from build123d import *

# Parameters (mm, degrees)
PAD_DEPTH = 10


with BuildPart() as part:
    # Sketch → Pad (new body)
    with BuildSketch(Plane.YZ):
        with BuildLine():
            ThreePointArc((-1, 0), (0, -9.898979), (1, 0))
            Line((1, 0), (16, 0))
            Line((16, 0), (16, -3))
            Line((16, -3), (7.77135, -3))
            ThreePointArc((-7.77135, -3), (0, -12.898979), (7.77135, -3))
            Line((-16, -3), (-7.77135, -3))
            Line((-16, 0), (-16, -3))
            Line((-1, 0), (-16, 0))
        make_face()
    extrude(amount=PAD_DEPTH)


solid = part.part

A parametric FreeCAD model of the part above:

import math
import FreeCAD as App
import Part
import Sketcher

V = App.Vector

doc = App.newDocument("Part")
body = doc.addObject("PartDesign::Body", "Body")

sketch1 = body.newObject("Sketcher::SketchObject", "Sketch")
sketch1.AttachmentSupport = (doc.getObject("YZ_Plane"), [""])
sketch1.MapMode = "FlatFace"
sketch1.addGeometry([
    Part.ArcOfCircle(Part.Circle(V(0, -4.898979, 0), V(0, 0, 1), 5), math.radians(101.53696), math.radians(438.46304)),
    Part.LineSegment(V(-1, 0, 0), V(-16, 0, 0)),
    Part.LineSegment(V(-16, 0, 0), V(-16, -3, 0)),
    Part.LineSegment(V(-16, -3, 0), V(-7.77135, -3, 0)),
    Part.ArcOfCircle(Part.Circle(V(0, -4.898979, 0), V(0, 0, 1), 8), math.radians(166.268493), math.radians(373.731507)),
    Part.LineSegment(V(7.77135, -3, 0), V(16, -3, 0)),
    Part.LineSegment(V(16, -3, 0), V(16, 0, 0)),
    Part.LineSegment(V(16, 0, 0), V(1, 0, 0)),
], False)
sketch1.addConstraint([
    Sketcher.Constraint("Coincident", 0, 1, 1, 1),
    Sketcher.Constraint("Coincident", 1, 2, 2, 1),
    Sketcher.Constraint("Coincident", 2, 2, 3, 1),
    Sketcher.Constraint("Coincident", 3, 2, 4, 1),
    Sketcher.Constraint("Coincident", 4, 2, 5, 1),
    Sketcher.Constraint("Coincident", 5, 2, 6, 1),
    Sketcher.Constraint("Coincident", 6, 2, 7, 1),
    Sketcher.Constraint("Coincident", 7, 2, 0, 2),
    Sketcher.Constraint("Horizontal", 1),
    Sketcher.Constraint("Vertical", 2),
    Sketcher.Constraint("Horizontal", 3),
    Sketcher.Constraint("Horizontal", 5),
    Sketcher.Constraint("Vertical", 6),
    Sketcher.Constraint("Horizontal", 7),
    Sketcher.Constraint("Coincident", 4, 3, 0, 3),
    Sketcher.Constraint("Symmetric", 1, 2, 6, 2, -1, 1),
    Sketcher.Constraint("Symmetric", 3, 2, 4, 2, -2),
    Sketcher.Constraint("PointOnObject", 0, 1, -1),
    Sketcher.Constraint("Radius", 0, 5.0),
    Sketcher.Constraint("Radius", 4, 8.0),
    Sketcher.Constraint("DistanceX", 1, 2, 1, 1, 15.0),
    Sketcher.Constraint("DistanceY", 2, 2, 2, 1, 3.0),
    Sketcher.Constraint("DistanceX", 0, 1, -1, 1, 1.0),
])
pad1 = body.newObject("PartDesign::Pad", "Pad")
pad1.Profile = sketch1
pad1.Length = 10

doc.recompute()
